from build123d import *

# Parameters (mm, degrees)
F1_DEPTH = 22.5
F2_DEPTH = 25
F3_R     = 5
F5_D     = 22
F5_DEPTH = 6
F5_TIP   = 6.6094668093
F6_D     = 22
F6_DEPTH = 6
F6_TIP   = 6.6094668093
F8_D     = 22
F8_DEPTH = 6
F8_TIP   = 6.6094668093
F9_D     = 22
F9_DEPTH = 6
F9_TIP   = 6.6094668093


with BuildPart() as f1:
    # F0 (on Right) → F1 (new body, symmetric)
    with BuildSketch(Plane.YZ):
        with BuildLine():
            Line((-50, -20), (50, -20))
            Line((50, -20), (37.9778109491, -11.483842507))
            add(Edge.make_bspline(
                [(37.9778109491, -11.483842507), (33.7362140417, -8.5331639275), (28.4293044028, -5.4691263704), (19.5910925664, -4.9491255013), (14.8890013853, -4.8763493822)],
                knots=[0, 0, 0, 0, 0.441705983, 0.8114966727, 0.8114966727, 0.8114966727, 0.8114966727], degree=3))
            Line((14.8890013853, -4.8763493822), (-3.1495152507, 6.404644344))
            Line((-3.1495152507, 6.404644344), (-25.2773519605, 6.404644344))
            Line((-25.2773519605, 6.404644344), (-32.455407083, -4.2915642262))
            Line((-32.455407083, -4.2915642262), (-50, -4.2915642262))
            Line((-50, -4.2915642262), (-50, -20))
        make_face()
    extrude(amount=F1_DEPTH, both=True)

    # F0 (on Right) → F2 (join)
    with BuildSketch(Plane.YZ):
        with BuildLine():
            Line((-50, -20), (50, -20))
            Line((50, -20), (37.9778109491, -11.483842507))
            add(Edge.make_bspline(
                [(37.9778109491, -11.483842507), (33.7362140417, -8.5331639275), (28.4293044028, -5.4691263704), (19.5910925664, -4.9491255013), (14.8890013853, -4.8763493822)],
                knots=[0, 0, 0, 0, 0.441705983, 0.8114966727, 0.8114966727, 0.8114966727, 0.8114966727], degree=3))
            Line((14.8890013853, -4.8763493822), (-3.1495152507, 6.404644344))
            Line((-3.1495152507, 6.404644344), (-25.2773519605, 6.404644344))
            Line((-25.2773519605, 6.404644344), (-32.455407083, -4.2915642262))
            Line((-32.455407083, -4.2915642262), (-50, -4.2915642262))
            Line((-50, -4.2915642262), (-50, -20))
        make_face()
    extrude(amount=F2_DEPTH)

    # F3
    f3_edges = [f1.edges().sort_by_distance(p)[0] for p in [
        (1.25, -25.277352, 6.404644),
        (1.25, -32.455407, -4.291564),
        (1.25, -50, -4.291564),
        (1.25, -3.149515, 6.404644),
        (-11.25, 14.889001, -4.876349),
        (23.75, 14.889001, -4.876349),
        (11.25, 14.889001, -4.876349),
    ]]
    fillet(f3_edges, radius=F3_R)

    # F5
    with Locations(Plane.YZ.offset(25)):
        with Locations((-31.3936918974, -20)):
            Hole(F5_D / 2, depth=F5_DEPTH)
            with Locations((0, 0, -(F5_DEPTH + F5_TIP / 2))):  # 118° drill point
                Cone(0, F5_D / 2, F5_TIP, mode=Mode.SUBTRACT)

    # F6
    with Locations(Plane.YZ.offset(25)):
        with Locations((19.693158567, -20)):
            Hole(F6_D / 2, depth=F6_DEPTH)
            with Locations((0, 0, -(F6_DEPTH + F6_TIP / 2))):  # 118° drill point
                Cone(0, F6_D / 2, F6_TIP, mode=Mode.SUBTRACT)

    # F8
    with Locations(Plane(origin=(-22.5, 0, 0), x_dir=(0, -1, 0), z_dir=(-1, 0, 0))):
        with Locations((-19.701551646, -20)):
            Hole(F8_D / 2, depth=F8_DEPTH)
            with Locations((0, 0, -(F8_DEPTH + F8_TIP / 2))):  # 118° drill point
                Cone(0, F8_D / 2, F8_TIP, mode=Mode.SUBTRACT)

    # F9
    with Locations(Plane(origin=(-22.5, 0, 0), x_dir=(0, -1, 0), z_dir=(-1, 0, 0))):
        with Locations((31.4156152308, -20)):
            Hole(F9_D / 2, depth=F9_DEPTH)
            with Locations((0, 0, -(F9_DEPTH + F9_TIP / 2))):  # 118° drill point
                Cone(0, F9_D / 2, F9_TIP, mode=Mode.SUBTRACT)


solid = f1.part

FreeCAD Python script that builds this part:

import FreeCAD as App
import Part
import Sketcher


def edges_at(feature, points):
    """Names of the edges that pass closest to the given points."""
    edges = feature.Shape.Edges
    near = lambda p: min(range(len(edges)), key=lambda i: edges[i].distToShape(Part.Vertex(*p))[0])
    return sorted({f"Edge{near(p) + 1}" for p in points})

doc = App.newDocument("Part")
body = doc.addObject("PartDesign::Body", "Body")

sketch1 = body.newObject("Sketcher::SketchObject", "Sketch")
sketch1.AttachmentSupport = (doc.getObject("YZ_Plane"), [""])
sketch1.MapMode = "FlatFace"
sketch1.addGeometry([
    Part.LineSegment(App.Vector(-50, -20, 0), App.Vector(50, -20, 0)),
    Part.LineSegment(App.Vector(50, -20, 0), App.Vector(37.977811, -11.483843, 0)),
    Part.BSplineCurve([App.Vector(37.977811, -11.483843, 0), App.Vector(33.736214, -8.533164, 0), App.Vector(28.429304, -5.469126, 0), App.Vector(19.591093, -4.949126, 0), App.Vector(14.889001, -4.876349, 0)], [4, 1, 4], [0, 0.441705983, 0.811496673], False, 3, [1, 1, 1, 1, 1], False),
    Part.LineSegment(App.Vector(14.889001, -4.876349, 0), App.Vector(-3.149515, 6.404644, 0)),
    Part.LineSegment(App.Vector(-3.149515, 6.404644, 0), App.Vector(-25.277352, 6.404644, 0)),
    Part.LineSegment(App.Vector(-25.277352, 6.404644, 0), App.Vector(-32.455407, -4.291564, 0)),
    Part.LineSegment(App.Vector(-32.455407, -4.291564, 0), App.Vector(-50, -4.291564, 0)),
    Part.LineSegment(App.Vector(-50, -4.291564, 0), App.Vector(-50, -20, 0)),
], False)
sketch1.addConstraint([
    Sketcher.Constraint("Block", 2),
    Sketcher.Constraint("Coincident", 0, 2, 1, 1),
    Sketcher.Constraint("Coincident", 1, 2, 2, 1),
    Sketcher.Constraint("Coincident", 2, 2, 3, 1),
    Sketcher.Constraint("Coincident", 3, 2, 4, 1),
    Sketcher.Constraint("Coincident", 4, 2, 5, 1),
    Sketcher.Constraint("Coincident", 5, 2, 6, 1),
    Sketcher.Constraint("Coincident", 6, 2, 7, 1),
    Sketcher.Constraint("Coincident", 7, 2, 0, 1),
    Sketcher.Constraint("Horizontal", 0),
    Sketcher.Constraint("Horizontal", 4),
    Sketcher.Constraint("Horizontal", 6),
    Sketcher.Constraint("Vertical", 7),
    Sketcher.Constraint("DistanceX", 0, 1, 0, 2, 100.0),
    Sketcher.Constraint("DistanceX", -1, 1, 0, 2, 50.0),
    Sketcher.Constraint("DistanceY", 0, 2, -1, 1, 20.0),
    Sketcher.Constraint("DistanceX", 4, 2, 4, 1, 22.127837),
    Sketcher.Constraint("DistanceX", 6, 2, 6, 1, 17.544593),
    Sketcher.Constraint("DistanceY", 7, 2, 7, 1, 15.708436),
    Sketcher.Constraint("DistanceX", 4, 2, -1, 1, 25.277352),
    Sketcher.Constraint("DistanceY", 5, 2, 4, 2, 10.696209),
])
pad1 = body.newObject("PartDesign::Pad", "Pad")
pad1.Profile = sketch1
pad1.Length = 45
pad1.Midplane = True

sketch2 = body.newObject("Sketcher::SketchObject", "Sketch001")
sketch2.AttachmentSupport = (doc.getObject("YZ_Plane"), [""])
sketch2.MapMode = "FlatFace"
sketch2.addGeometry([
    Part.LineSegment(App.Vector(-50, -20, 0), App.Vector(50, -20, 0)),
    Part.LineSegment(App.Vector(50, -20, 0), App.Vector(37.977811, -11.483843, 0)),
    Part.BSplineCurve([App.Vector(37.977811, -11.483843, 0), App.Vector(33.736214, -8.533164, 0), App.Vector(28.429304, -5.469126, 0), App.Vector(19.591093, -4.949126, 0), App.Vector(14.889001, -4.876349, 0)], [4, 1, 4], [0, 0.441705983, 0.811496673], False, 3, [1, 1, 1, 1, 1], False),
    Part.LineSegment(App.Vector(14.889001, -4.876349, 0), App.Vector(-3.149515, 6.404644, 0)),
    Part.LineSegment(App.Vector(-3.149515, 6.404644, 0), App.Vector(-25.277352, 6.404644, 0)),
    Part.LineSegment(App.Vector(-25.277352, 6.404644, 0), App.Vector(-32.455407, -4.291564, 0)),
    Part.LineSegment(App.Vector(-32.455407, -4.291564, 0), App.Vector(-50, -4.291564, 0)),
    Part.LineSegment(App.Vector(-50, -4.291564, 0), App.Vector(-50, -20, 0)),
], False)
sketch2.addConstraint([
    Sketcher.Constraint("Block", 2),
    Sketcher.Constraint("Coincident", 0, 2, 1, 1),
    Sketcher.Constraint("Coincident", 1, 2, 2, 1),
    Sketcher.Constraint("Coincident", 2, 2, 3, 1),
    Sketcher.Constraint("Coincident", 3, 2, 4, 1),
    Sketcher.Constraint("Coincident", 4, 2, 5, 1),
    Sketcher.Constraint("Coincident", 5, 2, 6, 1),
    Sketcher.Constraint("Coincident", 6, 2, 7, 1),
    Sketcher.Constraint("Coincident", 7, 2, 0, 1),
    Sketcher.Constraint("Horizontal", 0),
    Sketcher.Constraint("Horizontal", 4),
    Sketcher.Constraint("Horizontal", 6),
    Sketcher.Constraint("Vertical", 7),
    Sketcher.Constraint("DistanceX", 0, 1, 0, 2, 100.0),
    Sketcher.Constraint("DistanceX", -1, 1, 0, 2, 50.0),
    Sketcher.Constraint("DistanceY", 0, 2, -1, 1, 20.0),
    Sketcher.Constraint("DistanceX", 4, 2, 4, 1, 22.127837),
    Sketcher.Constraint("DistanceX", 6, 2, 6, 1, 17.544593),
    Sketcher.Constraint("DistanceY", 7, 2, 7, 1, 15.708436),
    Sketcher.Constraint("DistanceX", 4, 2, -1, 1, 25.277352),
    Sketcher.Constraint("DistanceY", 5, 2, 4, 2, 10.696209),
])
pad2 = body.newObject("PartDesign::Pad", "Pad001")
pad2.Profile = sketch2
pad2.Length = 25
doc.recompute()

fillet = body.newObject("PartDesign::Fillet", "Fillet")
fillet.Base = (pad2, edges_at(pad2, [
    (1.25, -25.277, 6.405),
    (1.25, -32.455, -4.292),
    (1.25, -50, -4.292),
    (1.25, -3.15, 6.405),
    (-11.25, 14.889, -4.876),
    (23.75, 14.889, -4.876),
    (11.25, 14.889, -4.876),
]))
fillet.Radius = 5

sketch3 = body.newObject("Sketcher::SketchObject", "Sketch002")
sketch3.AttachmentSupport = (doc.getObject("YZ_Plane"), [""])
sketch3.MapMode = "FlatFace"
sketch3.AttachmentOffset = App.Placement(App.Vector(0, 0, 25), App.Rotation())
sketch3.addGeometry(Part.Circle(App.Vector(-31, -20, 0), App.Vector(0, 0, 1), 11), False)
sketch3.addConstraint([
    Sketcher.Constraint("Diameter", 0, 22.0),
    Sketcher.Constraint("DistanceY", 0, 3, -1, 1, 20.0),
    Sketcher.Constraint("DistanceX", 0, 3, -1, 1, 31.393692),
])
doc.recompute()
hole = body.newObject("PartDesign::Hole", "Hole")
hole.Profile = sketch3
hole.ThreadType = "None"
hole.Diameter = 22
hole.DepthType = "Dimension"
hole.Depth = 6
hole.DrillPoint = "Angled"
hole.DrillPointAngle = 118

sketch4 = body.newObject("Sketcher::SketchObject", "Sketch003")
sketch4.AttachmentSupport = (doc.getObject("YZ_Plane"), [""])
sketch4.MapMode = "FlatFace"
sketch4.AttachmentOffset = App.Placement(App.Vector(0, 0, 25), App.Rotation())
sketch4.addGeometry(Part.Circle(App.Vector(20, -20, 0), App.Vector(0, 0, 1), 11), False)
sketch4.addConstraint([
    Sketcher.Constraint("Diameter", 0, 22.0),
    Sketcher.Constraint("DistanceY", 0, 3, -1, 1, 20.0),
    Sketcher.Constraint("DistanceX", -1, 1, 0, 3, 19.693159),
])
doc.recompute()
hole2 = body.newObject("PartDesign::Hole", "Hole001")
hole2.Profile = sketch4
hole2.ThreadType = "None"
hole2.Diameter = 22
hole2.DepthType = "Dimension"
hole2.Depth = 6
hole2.DrillPoint = "Angled"
hole2.DrillPointAngle = 118

sketch5 = body.newObject("Sketcher::SketchObject", "Sketch004")
sketch5.AttachmentSupport = (doc.getObject("YZ_Plane"), [""])
sketch5.MapMode = "FlatFace"
sketch5.AttachmentOffset = App.Placement(App.Vector(0, 0, -22.5), App.Rotation())
sketch5.addGeometry(Part.Circle(App.Vector(20, -20, 0), App.Vector(0, 0, 1), 11), False)
sketch5.addConstraint([
    Sketcher.Constraint("Diameter", 0, 22.0),
    Sketcher.Constraint("DistanceY", 0, 3, -1, 1, 20.0),
    Sketcher.Constraint("DistanceX", -1, 1, 0, 3, 19.701552),
])
doc.recompute()
hole3 = body.newObject("PartDesign::Hole", "Hole002")
hole3.Profile = sketch5
hole3.ThreadType = "None"
hole3.Diameter = 22
hole3.DepthType = "Dimension"
hole3.Depth = 6
hole3.DrillPoint = "Angled"
hole3.DrillPointAngle = 118
hole3.Reversed = True

sketch6 = body.newObject("Sketcher::SketchObject", "Sketch005")
sketch6.AttachmentSupport = (doc.getObject("YZ_Plane"), [""])
sketch6.MapMode = "FlatFace"
sketch6.AttachmentOffset = App.Placement(App.Vector(0, 0, -22.5), App.Rotation())
sketch6.addGeometry(Part.Circle(App.Vector(-31, -20, 0), App.Vector(0, 0, 1), 11), False)
sketch6.addConstraint([
    Sketcher.Constraint("Diameter", 0, 22.0),
    Sketcher.Constraint("DistanceY", 0, 3, -1, 1, 20.0),
    Sketcher.Constraint("DistanceX", 0, 3, -1, 1, 31.415615),
])
doc.recompute()
hole4 = body.newObject("PartDesign::Hole", "Hole003")
hole4.Profile = sketch6
hole4.ThreadType = "None"
hole4.Diameter = 22
hole4.DepthType = "Dimension"
hole4.Depth = 6
hole4.DrillPoint = "Angled"
hole4.DrillPointAngle = 118
hole4.Reversed = True

doc.recompute()
